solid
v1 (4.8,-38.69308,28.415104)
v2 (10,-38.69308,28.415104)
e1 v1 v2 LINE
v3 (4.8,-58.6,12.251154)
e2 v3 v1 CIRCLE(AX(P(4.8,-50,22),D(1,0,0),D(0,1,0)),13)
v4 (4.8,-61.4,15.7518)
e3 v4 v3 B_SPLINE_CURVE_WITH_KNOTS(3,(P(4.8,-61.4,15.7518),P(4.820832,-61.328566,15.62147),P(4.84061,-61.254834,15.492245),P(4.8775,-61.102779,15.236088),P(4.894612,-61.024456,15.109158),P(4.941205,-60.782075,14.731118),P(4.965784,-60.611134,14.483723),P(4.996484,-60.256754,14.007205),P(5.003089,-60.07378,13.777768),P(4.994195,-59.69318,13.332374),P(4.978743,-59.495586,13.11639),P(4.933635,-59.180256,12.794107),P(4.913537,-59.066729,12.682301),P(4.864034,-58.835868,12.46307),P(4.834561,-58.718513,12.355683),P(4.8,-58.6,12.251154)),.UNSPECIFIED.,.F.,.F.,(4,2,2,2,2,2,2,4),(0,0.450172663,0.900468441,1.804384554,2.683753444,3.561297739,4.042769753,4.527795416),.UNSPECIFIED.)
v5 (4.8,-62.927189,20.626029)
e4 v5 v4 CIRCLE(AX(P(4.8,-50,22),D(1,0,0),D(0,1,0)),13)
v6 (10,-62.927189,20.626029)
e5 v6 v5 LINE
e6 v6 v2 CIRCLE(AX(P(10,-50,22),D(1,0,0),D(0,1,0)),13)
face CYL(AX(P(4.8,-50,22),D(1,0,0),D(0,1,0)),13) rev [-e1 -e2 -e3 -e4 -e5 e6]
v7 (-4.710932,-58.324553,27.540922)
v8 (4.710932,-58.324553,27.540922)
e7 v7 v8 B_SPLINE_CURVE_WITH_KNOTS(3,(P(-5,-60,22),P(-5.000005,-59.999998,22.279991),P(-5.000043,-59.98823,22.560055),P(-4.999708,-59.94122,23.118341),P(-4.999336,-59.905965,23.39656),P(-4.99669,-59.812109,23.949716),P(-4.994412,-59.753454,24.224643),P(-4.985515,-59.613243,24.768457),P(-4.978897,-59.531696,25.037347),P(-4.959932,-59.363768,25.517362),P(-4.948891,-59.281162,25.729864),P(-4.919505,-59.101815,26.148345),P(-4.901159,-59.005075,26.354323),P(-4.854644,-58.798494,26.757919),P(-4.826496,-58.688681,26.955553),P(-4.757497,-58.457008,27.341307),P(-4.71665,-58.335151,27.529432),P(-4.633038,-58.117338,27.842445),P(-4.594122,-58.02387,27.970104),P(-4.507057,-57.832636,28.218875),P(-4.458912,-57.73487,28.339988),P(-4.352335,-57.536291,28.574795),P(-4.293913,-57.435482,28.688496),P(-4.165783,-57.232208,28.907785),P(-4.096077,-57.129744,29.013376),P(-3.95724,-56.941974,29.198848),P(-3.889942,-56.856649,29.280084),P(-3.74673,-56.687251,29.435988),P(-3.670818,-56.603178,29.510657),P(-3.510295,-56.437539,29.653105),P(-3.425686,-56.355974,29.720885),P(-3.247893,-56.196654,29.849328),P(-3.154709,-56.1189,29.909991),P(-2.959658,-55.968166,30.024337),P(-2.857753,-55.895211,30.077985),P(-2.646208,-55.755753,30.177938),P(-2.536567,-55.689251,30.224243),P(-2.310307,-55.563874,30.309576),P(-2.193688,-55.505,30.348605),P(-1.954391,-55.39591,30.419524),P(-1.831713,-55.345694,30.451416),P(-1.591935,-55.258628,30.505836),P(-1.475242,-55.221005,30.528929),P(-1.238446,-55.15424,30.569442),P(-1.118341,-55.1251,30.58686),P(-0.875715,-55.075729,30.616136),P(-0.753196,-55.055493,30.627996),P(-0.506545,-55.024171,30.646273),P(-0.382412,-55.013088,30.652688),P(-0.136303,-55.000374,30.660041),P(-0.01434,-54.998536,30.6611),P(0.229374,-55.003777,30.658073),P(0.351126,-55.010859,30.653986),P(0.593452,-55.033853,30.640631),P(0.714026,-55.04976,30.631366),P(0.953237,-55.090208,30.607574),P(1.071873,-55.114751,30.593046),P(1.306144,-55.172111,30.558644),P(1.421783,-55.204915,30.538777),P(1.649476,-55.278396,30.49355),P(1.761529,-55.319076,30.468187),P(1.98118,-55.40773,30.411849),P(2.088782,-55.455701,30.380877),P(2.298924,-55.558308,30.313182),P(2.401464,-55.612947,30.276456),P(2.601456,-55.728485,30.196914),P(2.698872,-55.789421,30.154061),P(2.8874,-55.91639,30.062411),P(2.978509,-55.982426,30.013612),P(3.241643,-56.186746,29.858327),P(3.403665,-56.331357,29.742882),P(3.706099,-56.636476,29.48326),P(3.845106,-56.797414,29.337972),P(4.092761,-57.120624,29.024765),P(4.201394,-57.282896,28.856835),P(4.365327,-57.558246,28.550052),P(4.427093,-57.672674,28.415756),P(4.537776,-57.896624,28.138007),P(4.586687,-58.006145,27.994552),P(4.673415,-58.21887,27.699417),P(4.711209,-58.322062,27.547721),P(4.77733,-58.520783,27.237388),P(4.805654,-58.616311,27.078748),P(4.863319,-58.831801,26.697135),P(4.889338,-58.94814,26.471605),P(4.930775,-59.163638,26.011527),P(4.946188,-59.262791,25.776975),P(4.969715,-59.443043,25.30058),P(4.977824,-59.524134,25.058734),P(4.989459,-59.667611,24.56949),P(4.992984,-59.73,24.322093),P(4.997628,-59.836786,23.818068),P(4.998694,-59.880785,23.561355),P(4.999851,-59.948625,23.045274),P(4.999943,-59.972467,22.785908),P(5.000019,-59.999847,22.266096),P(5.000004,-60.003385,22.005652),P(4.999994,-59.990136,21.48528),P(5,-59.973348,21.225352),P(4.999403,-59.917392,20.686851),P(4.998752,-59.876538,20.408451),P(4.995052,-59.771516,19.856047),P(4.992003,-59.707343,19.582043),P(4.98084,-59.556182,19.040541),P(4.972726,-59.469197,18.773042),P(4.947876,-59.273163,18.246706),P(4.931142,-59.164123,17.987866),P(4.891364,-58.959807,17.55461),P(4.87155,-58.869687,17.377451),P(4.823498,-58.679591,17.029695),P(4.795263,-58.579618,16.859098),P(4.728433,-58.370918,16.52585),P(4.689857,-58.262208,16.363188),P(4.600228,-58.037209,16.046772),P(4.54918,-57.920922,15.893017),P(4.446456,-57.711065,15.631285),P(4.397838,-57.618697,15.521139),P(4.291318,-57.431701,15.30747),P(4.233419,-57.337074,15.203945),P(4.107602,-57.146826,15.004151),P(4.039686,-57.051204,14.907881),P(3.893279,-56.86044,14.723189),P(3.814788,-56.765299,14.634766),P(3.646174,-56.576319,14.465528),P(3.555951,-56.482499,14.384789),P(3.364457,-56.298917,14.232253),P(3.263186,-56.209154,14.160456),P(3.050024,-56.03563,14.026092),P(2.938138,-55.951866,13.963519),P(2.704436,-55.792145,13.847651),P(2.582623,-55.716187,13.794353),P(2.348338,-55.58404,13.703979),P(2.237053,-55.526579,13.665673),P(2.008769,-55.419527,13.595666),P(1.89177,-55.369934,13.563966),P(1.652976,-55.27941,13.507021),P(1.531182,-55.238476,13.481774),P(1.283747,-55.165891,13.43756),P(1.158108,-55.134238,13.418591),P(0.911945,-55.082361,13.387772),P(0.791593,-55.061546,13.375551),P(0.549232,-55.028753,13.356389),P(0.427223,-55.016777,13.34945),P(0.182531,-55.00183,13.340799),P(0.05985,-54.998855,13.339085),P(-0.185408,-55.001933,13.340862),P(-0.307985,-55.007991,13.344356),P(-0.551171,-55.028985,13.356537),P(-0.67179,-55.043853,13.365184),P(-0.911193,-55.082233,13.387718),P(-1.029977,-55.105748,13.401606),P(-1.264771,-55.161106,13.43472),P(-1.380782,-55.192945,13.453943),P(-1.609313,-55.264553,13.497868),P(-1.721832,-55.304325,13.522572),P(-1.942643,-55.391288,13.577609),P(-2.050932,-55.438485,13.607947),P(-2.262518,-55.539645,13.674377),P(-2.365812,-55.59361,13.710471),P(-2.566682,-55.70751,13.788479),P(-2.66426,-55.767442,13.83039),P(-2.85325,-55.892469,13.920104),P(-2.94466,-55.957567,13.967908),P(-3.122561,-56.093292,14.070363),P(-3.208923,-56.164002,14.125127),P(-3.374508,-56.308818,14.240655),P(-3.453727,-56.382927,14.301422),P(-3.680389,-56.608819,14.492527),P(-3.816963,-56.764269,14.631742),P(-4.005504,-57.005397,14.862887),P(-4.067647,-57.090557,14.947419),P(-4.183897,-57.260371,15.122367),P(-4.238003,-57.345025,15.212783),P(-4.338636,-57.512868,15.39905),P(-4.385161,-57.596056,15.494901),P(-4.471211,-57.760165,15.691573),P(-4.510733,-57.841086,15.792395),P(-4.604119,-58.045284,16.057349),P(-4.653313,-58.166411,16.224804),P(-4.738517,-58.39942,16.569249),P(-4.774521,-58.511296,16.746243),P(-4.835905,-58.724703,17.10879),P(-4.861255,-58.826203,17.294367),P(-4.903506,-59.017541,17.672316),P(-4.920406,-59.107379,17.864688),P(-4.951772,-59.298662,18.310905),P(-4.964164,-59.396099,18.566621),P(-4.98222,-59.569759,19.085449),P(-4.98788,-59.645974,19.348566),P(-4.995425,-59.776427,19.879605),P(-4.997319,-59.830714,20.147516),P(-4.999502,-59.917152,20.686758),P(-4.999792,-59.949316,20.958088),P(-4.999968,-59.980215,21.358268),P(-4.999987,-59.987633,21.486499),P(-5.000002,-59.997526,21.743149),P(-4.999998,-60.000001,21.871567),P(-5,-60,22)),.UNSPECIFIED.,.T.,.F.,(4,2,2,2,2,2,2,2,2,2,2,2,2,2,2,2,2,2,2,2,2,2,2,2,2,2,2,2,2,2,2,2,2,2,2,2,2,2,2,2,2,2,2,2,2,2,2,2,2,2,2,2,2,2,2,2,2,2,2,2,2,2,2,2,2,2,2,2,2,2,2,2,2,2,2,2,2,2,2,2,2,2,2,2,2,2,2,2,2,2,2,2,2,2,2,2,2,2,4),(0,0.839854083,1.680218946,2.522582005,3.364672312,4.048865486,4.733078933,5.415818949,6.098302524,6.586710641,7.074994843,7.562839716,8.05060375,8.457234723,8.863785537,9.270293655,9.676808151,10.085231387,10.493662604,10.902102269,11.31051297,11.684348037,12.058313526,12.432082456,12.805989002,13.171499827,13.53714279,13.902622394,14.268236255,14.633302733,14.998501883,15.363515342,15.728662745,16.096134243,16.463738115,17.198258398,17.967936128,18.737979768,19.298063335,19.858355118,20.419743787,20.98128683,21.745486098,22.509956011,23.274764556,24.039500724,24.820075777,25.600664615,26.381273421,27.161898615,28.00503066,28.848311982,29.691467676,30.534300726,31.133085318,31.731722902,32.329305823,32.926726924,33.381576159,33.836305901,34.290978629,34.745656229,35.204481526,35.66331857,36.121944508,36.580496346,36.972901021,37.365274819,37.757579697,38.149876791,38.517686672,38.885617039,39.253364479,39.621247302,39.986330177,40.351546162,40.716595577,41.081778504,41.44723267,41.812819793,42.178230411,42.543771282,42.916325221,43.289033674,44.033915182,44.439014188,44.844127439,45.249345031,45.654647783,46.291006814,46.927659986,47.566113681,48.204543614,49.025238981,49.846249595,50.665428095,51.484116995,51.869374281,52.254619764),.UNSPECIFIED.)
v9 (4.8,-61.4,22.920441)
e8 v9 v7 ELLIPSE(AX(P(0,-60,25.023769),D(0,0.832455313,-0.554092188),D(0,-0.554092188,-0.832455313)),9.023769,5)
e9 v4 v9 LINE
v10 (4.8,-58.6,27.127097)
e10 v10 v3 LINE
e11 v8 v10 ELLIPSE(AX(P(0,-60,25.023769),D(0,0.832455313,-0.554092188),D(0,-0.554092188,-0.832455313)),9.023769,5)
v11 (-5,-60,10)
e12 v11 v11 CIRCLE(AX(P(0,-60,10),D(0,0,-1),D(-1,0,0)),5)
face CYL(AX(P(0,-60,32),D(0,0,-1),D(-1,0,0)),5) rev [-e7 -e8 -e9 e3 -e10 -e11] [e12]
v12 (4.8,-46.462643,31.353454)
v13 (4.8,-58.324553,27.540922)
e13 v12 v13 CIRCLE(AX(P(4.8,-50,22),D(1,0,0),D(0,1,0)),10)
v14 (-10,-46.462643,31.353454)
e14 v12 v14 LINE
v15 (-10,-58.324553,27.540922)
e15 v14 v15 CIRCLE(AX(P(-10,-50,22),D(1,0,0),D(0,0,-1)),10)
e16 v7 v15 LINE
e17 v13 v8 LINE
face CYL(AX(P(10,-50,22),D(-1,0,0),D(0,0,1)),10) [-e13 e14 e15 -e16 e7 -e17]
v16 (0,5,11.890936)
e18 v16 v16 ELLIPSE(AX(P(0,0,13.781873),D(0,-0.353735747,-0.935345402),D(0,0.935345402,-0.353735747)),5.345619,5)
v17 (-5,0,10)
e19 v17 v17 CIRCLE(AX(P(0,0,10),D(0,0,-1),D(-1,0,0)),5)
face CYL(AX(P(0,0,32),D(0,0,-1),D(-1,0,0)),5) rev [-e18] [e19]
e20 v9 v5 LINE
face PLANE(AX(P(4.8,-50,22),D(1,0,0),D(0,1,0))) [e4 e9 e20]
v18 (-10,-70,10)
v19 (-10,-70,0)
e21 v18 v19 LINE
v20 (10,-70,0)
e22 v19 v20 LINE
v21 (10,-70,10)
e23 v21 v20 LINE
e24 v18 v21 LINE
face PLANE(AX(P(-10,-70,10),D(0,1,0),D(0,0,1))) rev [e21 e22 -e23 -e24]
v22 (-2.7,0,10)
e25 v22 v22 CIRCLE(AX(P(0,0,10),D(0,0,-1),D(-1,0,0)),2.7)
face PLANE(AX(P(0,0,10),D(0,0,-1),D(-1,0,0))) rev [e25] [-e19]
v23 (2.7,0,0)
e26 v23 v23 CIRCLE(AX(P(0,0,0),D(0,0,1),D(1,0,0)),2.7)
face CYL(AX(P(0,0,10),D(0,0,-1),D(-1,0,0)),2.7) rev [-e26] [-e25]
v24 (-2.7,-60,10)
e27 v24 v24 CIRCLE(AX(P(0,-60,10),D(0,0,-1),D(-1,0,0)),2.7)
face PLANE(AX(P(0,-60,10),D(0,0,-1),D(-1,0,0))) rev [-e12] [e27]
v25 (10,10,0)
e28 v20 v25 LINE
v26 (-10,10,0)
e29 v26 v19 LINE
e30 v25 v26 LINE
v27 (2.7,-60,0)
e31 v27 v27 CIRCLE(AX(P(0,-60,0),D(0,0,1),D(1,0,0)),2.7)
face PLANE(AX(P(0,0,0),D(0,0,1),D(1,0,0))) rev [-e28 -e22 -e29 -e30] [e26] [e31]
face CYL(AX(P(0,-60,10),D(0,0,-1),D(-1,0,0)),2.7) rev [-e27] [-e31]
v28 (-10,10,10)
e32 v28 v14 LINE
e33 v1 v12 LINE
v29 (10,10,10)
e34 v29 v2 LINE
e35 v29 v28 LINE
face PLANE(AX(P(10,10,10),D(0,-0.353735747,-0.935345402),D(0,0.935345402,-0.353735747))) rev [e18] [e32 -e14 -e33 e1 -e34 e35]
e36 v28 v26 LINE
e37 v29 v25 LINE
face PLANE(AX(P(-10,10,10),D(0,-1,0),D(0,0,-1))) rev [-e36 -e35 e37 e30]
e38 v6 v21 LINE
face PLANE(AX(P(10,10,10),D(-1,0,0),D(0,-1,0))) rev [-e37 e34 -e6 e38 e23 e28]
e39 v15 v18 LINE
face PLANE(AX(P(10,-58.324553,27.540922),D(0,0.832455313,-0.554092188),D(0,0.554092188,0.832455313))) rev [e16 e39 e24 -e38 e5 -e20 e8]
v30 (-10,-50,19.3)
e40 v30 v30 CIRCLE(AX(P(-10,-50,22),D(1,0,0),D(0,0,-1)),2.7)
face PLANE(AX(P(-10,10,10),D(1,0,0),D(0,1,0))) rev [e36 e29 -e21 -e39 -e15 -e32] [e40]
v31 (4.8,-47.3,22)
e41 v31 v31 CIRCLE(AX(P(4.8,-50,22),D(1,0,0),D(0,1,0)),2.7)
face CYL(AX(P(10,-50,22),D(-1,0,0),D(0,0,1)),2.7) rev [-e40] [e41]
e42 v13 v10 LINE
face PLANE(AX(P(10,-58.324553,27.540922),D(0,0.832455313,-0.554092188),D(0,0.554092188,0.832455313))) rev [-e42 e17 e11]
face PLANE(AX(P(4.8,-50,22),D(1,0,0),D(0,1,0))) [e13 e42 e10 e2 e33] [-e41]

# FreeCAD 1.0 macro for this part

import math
import FreeCAD as App
import Part
import Sketcher

doc = App.newDocument("Part")
params = doc.addObject("Spreadsheet::Sheet", "Params")
for row, (alias, value) in enumerate([
    ("sketch1_diameter", "5.4 mm"),
    ("sketch1_width", "20 mm"),
    ("sketch1_height", "80 mm"),
    ("pad1_length", "10 mm"),
    ("sketch2_radius", "10 mm"),
    ("sketch2_diameter", "5.4 mm"),
    ("sketch2_width", "80 mm"),
    ("pad2_length", "20 mm"),
    ("sketch3_diameter", "10 mm"),
    ("sketch4_diameter", "26 mm"),
    ("pocket2_length", "5.2 mm"),
], start=1):
    params.set(f"A{row}", alias)
    params.set(f"B{row}", "=" + value)
    params.setAlias(f"B{row}", alias)

body = doc.addObject("PartDesign::Body", "Body")

# Sketch on XY plane
sketch1 = body.newObject("Sketcher::SketchObject", "Sketch")
sketch1.AttachmentSupport = (doc.getObject("XY_Plane"), [""])
sketch1.MapMode = "FlatFace"
sketch1.addGeometry([
    Part.LineSegment(App.Vector(-10, 10, 0), App.Vector(-10, -70, 0)),  # 0
    Part.LineSegment(App.Vector(-10, -70, 0), App.Vector(10, -70, 0)),  # 1
    Part.LineSegment(App.Vector(10, -70, 0), App.Vector(10, 10, 0)),  # 2
    Part.LineSegment(App.Vector(10, 10, 0), App.Vector(-10, 10, 0)),  # 3
    Part.Circle(App.Vector(0, -60, 0), App.Vector(0, 0, 1), 2.7),  # 4
    Part.Circle(App.Vector(0, 0, 0), App.Vector(0, 0, 1), 2.7),  # 5
], False)
sketch1.addConstraint([
    Sketcher.Constraint("Coincident", 0, 2, 1, 1),
    Sketcher.Constraint("Coincident", 1, 2, 2, 1),
    Sketcher.Constraint("Coincident", 2, 2, 3, 1),
    Sketcher.Constraint("Coincident", 3, 2, 0, 1),
    Sketcher.Constraint("Vertical", 0),
    Sketcher.Constraint("Horizontal", 1),
    Sketcher.Constraint("Vertical", 2),
    Sketcher.Constraint("Horizontal", 3),
    Sketcher.Constraint("Coincident", 5, 3, -1, 1),
    Sketcher.Constraint("Equal", 4, 5),
    Sketcher.Constraint("PointOnObject", 4, 3, -2),
    Sketcher.Constraint("Diameter", 4, 5.4),
    Sketcher.Constraint("DistanceX", 1, 1, 1, 2, 20.0),
    Sketcher.Constraint("DistanceY", 0, 2, 0, 1, 80.0),
    Sketcher.Constraint("DistanceY", 4, 3, -1, 1, 60.0),
    Sketcher.Constraint("DistanceX", 0, 2, -1, 1, 10.0),
    Sketcher.Constraint("DistanceY", 0, 2, -1, 1, 70.0),
])
sketch1.setExpression("Constraints[11]", "Params.sketch1_diameter")
sketch1.setExpression("Constraints[12]", "Params.sketch1_width")
sketch1.setExpression("Constraints[13]", "Params.sketch1_height")
pad1 = body.newObject("PartDesign::Pad", "Pad")
pad1.Profile = sketch1
pad1.setExpression("Length", "Params.pad1_length")

# Sketch on YZ plane
sketch2 = body.newObject("Sketcher::SketchObject", "Sketch001")
sketch2.AttachmentSupport = (doc.getObject("YZ_Plane"), [""])
sketch2.MapMode = "FlatFace"
sketch2.addGeometry([
    Part.LineSegment(App.Vector(10, 10, 0), App.Vector(-46.5, 31.4, 0)),  # 0
    Part.ArcOfCircle(Part.Circle(App.Vector(-50, 22, 0), App.Vector(0, 0, 1), 10), math.radians(69), math.radians(146)),  # 1
    Part.LineSegment(App.Vector(-58.3, 27.5, 0), App.Vector(-70, 10, 0)),  # 2
    Part.LineSegment(App.Vector(-70, 10, 0), App.Vector(10, 10, 0)),  # 3
    Part.Circle(App.Vector(-50, 22, 0), App.Vector(0, 0, 1), 2.7),  # 4
], False)
sketch2.addConstraint([
    Sketcher.Constraint("Tangent", 0, 2, 1, 1),
    Sketcher.Constraint("Tangent", 1, 2, 2, 1),
    Sketcher.Constraint("Coincident", 2, 2, 3, 1),
    Sketcher.Constraint("Coincident", 3, 2, 0, 1),
    Sketcher.Constraint("Horizontal", 3),
    Sketcher.Constraint("Coincident", 4, 3, 1, 3),
    Sketcher.Constraint("Radius", 1, 10.0),
    Sketcher.Constraint("Diameter", 4, 5.4),
    Sketcher.Constraint("DistanceX", 3, 1, 3, 2, 80.0),
    Sketcher.Constraint("DistanceX", 1, 3, -1, 1, 50.0),
    Sketcher.Constraint("DistanceY", -1, 1, 1, 3, 22.0),
    Sketcher.Constraint("DistanceX", 2, 2, -1, 1, 70.0),
    Sketcher.Constraint("DistanceY", -1, 1, 2, 2, 10.0),
])
sketch2.setExpression("Constraints[6]", "Params.sketch2_radius")
sketch2.setExpression("Constraints[7]", "Params.sketch2_diameter")
sketch2.setExpression("Constraints[8]", "Params.sketch2_width")
pad2 = body.newObject("PartDesign::Pad", "Pad001")
pad2.Profile = sketch2
pad2.setExpression("Length", "Params.pad2_length")
pad2.Midplane = True

# Sketch on XY plane
sketch3 = body.newObject("Sketcher::SketchObject", "Sketch002")
sketch3.AttachmentSupport = (doc.getObject("XY_Plane"), [""])
sketch3.MapMode = "FlatFace"
sketch3.AttachmentOffset = App.Placement(App.Vector(0, 0, 10), App.Rotation())
sketch3.addGeometry([
    Part.Circle(App.Vector(0, -60, 0), App.Vector(0, 0, 1), 5),
    Part.Circle(App.Vector(0, 0, 0), App.Vector(0, 0, 1), 5),
], False)
sketch3.addConstraint([
    Sketcher.Constraint("Coincident", 1, 3, -1, 1),
    Sketcher.Constraint("Equal", 0, 1),
    Sketcher.Constraint("PointOnObject", 0, 3, -2),
    Sketcher.Constraint("Diameter", 0, 10.0),
    Sketcher.Constraint("DistanceY", 0, 3, -1, 1, 60.0),
])
sketch3.setExpression("Constraints[3]", "Params.sketch3_diameter")
pocket1 = body.newObject("PartDesign::Pocket", "Pocket")
pocket1.Profile = sketch3
pocket1.Type = "ThroughAll"
pocket1.Reversed = True

# Sketch on YZ plane
sketch4 = body.newObject("Sketcher::SketchObject", "Sketch003")
sketch4.AttachmentSupport = (doc.getObject("YZ_Plane"), [""])
sketch4.MapMode = "FlatFace"
sketch4.AttachmentOffset = App.Placement(App.Vector(0, 0, 10), App.Rotation())
sketch4.addGeometry(Part.Circle(App.Vector(-50, 22, 0), App.Vector(0, 0, 1), 13), False)
sketch4.addConstraint([
    Sketcher.Constraint("Diameter", 0, 26.0),
    Sketcher.Constraint("DistanceX", 0, 3, -1, 1, 50.0),
    Sketcher.Constraint("DistanceY", -1, 1, 0, 3, 22.0),
])
sketch4.setExpression("Constraints[0]", "Params.sketch4_diameter")
pocket2 = body.newObject("PartDesign::Pocket", "Pocket001")
pocket2.Profile = sketch4
pocket2.setExpression("Length", "Params.pocket2_length")

doc.recompute()
